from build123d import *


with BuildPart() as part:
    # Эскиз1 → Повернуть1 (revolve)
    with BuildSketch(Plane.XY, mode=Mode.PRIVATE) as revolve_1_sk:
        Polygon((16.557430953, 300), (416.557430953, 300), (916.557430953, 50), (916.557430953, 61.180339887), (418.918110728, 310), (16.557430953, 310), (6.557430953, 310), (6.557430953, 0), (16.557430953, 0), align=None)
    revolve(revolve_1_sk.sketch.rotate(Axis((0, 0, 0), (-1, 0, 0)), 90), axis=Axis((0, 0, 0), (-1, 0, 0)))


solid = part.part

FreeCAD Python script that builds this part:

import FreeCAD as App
import Part
import Sketcher

doc = App.newDocument("Part")
body = doc.addObject("PartDesign::Body", "Body")

sketch1 = body.newObject("Sketcher::SketchObject", "Sketch")
sketch1.AttachmentSupport = (doc.getObject("XY_Plane"), [""])
sketch1.MapMode = "FlatFace"
sketch1.addGeometry(Part.LineSegment(App.Vector(17, 300, 0), App.Vector(417, 300, 0)), False)
sketch1.addGeometry(Part.LineSegment(App.Vector(417, 300, 0), App.Vector(917, 50, 0)), False)
sketch1.addGeometry(Part.LineSegment(App.Vector(917, 50, 0), App.Vector(917, 61, 0)), False)
sketch1.addGeometry(Part.LineSegment(App.Vector(917, 61, 0), App.Vector(419, 310, 0)), False)
sketch1.addGeometry(Part.LineSegment(App.Vector(419, 310, 0), App.Vector(7, 310, 0)), False)
sketch1.addGeometry(Part.LineSegment(App.Vector(7, 310, 0), App.Vector(7, 0, 0)), False)
sketch1.addGeometry(Part.LineSegment(App.Vector(7, 0, 0), App.Vector(17, 0, 0)), False)
sketch1.addGeometry(Part.LineSegment(App.Vector(17, 0, 0), App.Vector(17, 300, 0)), False)
sketch1.addConstraint(Sketcher.Constraint("Coincident", 0, 2, 1, 1))
sketch1.addConstraint(Sketcher.Constraint("Coincident", 1, 2, 2, 1))
sketch1.addConstraint(Sketcher.Constraint("Coincident", 2, 2, 3, 1))
sketch1.addConstraint(Sketcher.Constraint("Coincident", 3, 2, 4, 1))
sketch1.addConstraint(Sketcher.Constraint("Coincident", 4, 2, 5, 1))
sketch1.addConstraint(Sketcher.Constraint("Coincident", 5, 2, 6, 1))
sketch1.addConstraint(Sketcher.Constraint("Coincident", 6, 2, 7, 1))
sketch1.addConstraint(Sketcher.Constraint("Coincident", 7, 2, 0, 1))
sketch1.addConstraint(Sketcher.Constraint("Horizontal", 0))
sketch1.addConstraint(Sketcher.Constraint("Vertical", 2))
sketch1.addConstraint(Sketcher.Constraint("Horizontal", 4))
sketch1.addConstraint(Sketcher.Constraint("Vertical", 5))
sketch1.addConstraint(Sketcher.Constraint("Horizontal", 6))
sketch1.addConstraint(Sketcher.Constraint("Vertical", 7))
sketch1.addConstraint(Sketcher.Constraint("PointOnObject", 5, 2, -1))
sketch1.addConstraint(Sketcher.Constraint("Parallel", 1, 3))
sketch1.addConstraint(Sketcher.Constraint("DistanceX", 0, 1, 0, 2, 400.0))
sketch1.addConstraint(Sketcher.Constraint("DistanceX", 6, 1, 6, 2, 10.0))
sketch1.addConstraint(Sketcher.Constraint("DistanceY", 5, 2, 5, 1, 310.0))
sketch1.addConstraint(Sketcher.Constraint("DistanceY", 7, 1, 7, 2, 300.0))
sketch1.addConstraint(Sketcher.Constraint("DistanceY", -1, 1, 1, 2, 50.0))
sketch1.addConstraint(Sketcher.Constraint("DistanceX", 0, 2, 1, 2, 500.0))
sketch1.addConstraint(Sketcher.Constraint("DistanceX", 4, 2, 4, 1, 412.36068))
sketch1.addConstraint(Sketcher.Constraint("DistanceX", -1, 1, 0, 2, 416.557431))
revolution = body.newObject("PartDesign::Revolution", "Revolution")
revolution.Profile = sketch1
revolution.ReferenceAxis = (sketch1, ["H_Axis"])
revolution.Angle = 360

doc.recompute()
